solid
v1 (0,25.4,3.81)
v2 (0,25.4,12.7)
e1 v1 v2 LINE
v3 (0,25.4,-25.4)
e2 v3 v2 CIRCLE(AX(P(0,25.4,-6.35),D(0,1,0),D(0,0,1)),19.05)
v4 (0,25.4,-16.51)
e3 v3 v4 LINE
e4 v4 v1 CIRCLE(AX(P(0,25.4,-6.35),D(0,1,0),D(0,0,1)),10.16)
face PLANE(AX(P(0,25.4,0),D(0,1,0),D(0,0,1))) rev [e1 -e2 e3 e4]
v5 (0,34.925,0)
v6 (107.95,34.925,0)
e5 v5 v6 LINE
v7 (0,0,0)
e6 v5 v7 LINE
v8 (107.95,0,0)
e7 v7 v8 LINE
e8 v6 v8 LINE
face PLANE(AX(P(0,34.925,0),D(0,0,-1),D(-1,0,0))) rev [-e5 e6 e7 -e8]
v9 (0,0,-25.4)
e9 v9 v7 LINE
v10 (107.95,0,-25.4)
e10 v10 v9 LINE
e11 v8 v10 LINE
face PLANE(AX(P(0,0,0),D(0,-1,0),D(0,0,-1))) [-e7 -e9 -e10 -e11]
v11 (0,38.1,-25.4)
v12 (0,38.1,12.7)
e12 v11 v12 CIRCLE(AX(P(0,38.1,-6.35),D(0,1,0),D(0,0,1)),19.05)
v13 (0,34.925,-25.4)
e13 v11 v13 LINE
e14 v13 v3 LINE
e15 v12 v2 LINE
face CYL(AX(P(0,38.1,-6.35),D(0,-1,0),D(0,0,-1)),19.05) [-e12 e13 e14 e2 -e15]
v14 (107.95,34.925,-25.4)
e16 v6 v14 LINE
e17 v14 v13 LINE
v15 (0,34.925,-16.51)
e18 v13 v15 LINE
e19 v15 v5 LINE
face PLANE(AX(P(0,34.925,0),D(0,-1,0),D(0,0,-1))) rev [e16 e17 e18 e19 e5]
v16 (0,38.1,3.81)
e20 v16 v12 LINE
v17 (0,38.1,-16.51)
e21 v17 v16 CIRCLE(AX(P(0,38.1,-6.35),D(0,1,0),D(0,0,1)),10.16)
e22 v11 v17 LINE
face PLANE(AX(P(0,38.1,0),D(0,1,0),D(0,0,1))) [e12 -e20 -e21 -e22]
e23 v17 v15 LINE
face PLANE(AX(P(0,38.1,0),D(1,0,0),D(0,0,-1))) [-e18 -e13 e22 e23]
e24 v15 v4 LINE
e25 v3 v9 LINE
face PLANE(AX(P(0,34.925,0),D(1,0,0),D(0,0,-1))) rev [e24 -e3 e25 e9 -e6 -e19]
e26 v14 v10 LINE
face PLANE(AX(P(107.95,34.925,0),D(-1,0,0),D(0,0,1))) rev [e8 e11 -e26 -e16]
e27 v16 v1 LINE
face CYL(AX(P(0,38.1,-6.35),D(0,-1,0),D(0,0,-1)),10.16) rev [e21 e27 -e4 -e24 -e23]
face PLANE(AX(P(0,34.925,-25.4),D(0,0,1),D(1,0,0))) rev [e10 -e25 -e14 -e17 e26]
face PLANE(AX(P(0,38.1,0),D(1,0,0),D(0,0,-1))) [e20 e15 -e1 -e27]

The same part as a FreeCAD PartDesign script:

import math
import FreeCAD as App
import Part
import Sketcher

V = App.Vector
Q = App.Units.Quantity

doc = App.newDocument("Part")
body = doc.addObject("PartDesign::Body", "Body")

# Sketch on XZ plane
sketch1 = body.newObject("Sketcher::SketchObject", "Sketch")
sketch1.AttachmentSupport = (doc.getObject("XZ_Plane"), [""])
sketch1.MapMode = "FlatFace"
sketch1.addGeometry([
    Part.LineSegment(V(0, -25.4, 0), V(0, 0, 0)),
    Part.LineSegment(V(0, 0, 0), V(107.95, 0, 0)),
    Part.LineSegment(V(107.95, 0, 0), V(107.95, -25.4, 0)),
    Part.LineSegment(V(107.95, -25.4, 0), V(0, -25.4, 0)),
], False)
sketch1.addConstraint([
    Sketcher.Constraint("Coincident", 0, 2, 1, 1),
    Sketcher.Constraint("Coincident", 1, 2, 2, 1),
    Sketcher.Constraint("Coincident", 2, 2, 3, 1),
    Sketcher.Constraint("Coincident", 3, 2, 0, 1),
    Sketcher.Constraint("Vertical", 0),
    Sketcher.Constraint("Horizontal", 1),
    Sketcher.Constraint("Vertical", 2),
    Sketcher.Constraint("Horizontal", 3),
    Sketcher.Constraint("Coincident", 0, 2, -1, 1),
    Sketcher.Constraint("DistanceY", 0, 1, 0, 2, Q("1 in")),
    Sketcher.Constraint("DistanceX", 1, 1, 1, 2, Q("4.25 in")),
])
pad1 = body.newObject("PartDesign::Pad", "Pad")
pad1.Profile = sketch1
pad1.Length = Q("1.375 in")
pad1.Reversed = True

# Sketch on XZ plane
sketch2 = body.newObject("Sketcher::SketchObject", "Sketch001")
sketch2.AttachmentSupport = (doc.getObject("XZ_Plane"), [""])
sketch2.MapMode = "FlatFace"
sketch2.AttachmentOffset = App.Placement(V(0, 0, -1 * 25.4), App.Rotation())
sketch2.addGeometry([
    Part.LineSegment(V(0, -16.51, 0), V(0, -25.4, 0)),
    Part.ArcOfCircle(Part.Circle(V(0, -6.35, 0), V(0, 0, 1), 19.05), math.radians(90), math.radians(270)),
    Part.LineSegment(V(0, 12.7, 0), V(0, 3.81, 0)),
    Part.ArcOfCircle(Part.Circle(V(0, -6.35, 0), V(0, 0, 1), 10.16), math.radians(90), math.radians(270)),
], False)
sketch2.addConstraint([
    Sketcher.Constraint("Coincident", 0, 2, 1, 2),
    Sketcher.Constraint("Coincident", 1, 1, 2, 1),
    Sketcher.Constraint("Coincident", 2, 2, 3, 1),
    Sketcher.Constraint("Coincident", 3, 2, 0, 1),
    Sketcher.Constraint("Vertical", 0),
    Sketcher.Constraint("Vertical", 2),
    Sketcher.Constraint("Coincident", 3, 3, 1, 3),
    Sketcher.Constraint("PointOnObject", 1, 3, -2),
    Sketcher.Constraint("PointOnObject", 0, 2, -2),
    Sketcher.Constraint("PointOnObject", 1, 1, -2),
    Sketcher.Constraint("Radius", 3, Q("0.4 in")),
    Sketcher.Constraint("Radius", 1, Q("0.75 in")),
    Sketcher.Constraint("DistanceY", 0, 2, -1, 1, Q("1 in")),
])
pad2 = body.newObject("PartDesign::Pad", "Pad001")
pad2.Profile = sketch2
pad2.Length = Q("0.5 in")
pad2.Reversed = True

doc.recompute()
